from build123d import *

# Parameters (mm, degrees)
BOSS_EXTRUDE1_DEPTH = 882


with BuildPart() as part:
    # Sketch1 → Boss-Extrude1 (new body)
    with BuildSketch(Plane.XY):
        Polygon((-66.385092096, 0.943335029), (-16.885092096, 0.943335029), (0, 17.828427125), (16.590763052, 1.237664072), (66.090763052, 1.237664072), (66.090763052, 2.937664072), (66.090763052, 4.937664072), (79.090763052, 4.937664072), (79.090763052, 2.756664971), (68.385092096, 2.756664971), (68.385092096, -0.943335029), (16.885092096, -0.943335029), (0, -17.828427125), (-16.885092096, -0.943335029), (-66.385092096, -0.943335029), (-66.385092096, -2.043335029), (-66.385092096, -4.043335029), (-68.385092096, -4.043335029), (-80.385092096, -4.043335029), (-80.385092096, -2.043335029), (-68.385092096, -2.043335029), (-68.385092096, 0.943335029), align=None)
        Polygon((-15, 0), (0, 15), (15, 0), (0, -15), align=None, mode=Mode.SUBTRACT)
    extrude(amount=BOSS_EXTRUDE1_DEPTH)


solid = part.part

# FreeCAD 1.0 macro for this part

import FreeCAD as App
import Part
import Sketcher


def add_polygon(sketch, points):
    """Adds a closed chain of lines whose ends are joined by coincident constraints."""
    first, n = sketch.GeometryCount, len(points)
    for a, b in zip(points, points[1:] + points[:1]):
        sketch.addGeometry(Part.LineSegment(App.Vector(*a, 0), App.Vector(*b, 0)), False)
    for i in range(n):
        sketch.addConstraint(Sketcher.Constraint("Coincident", first + i, 2, first + (i + 1) % n, 1))

doc = App.newDocument("Part")
body = doc.addObject("PartDesign::Body", "Body")

# Sketch on XY plane
sketch1 = body.newObject("Sketcher::SketchObject", "Sketch")
sketch1.AttachmentSupport = (doc.getObject("XY_Plane"), [""])
sketch1.MapMode = "FlatFace"
add_polygon(sketch1, [(-16.885092, 0.943335), (-68.385092, 0.943335), (-68.385092, -2.043335), (-80.385092, -2.043335), (-80.385092, -4.043335), (-66.385092, -4.043335), (-66.385092, -0.943335), (-16.885092, -0.943335), (0, -17.828427), (16.885092, -0.943335), (68.385092, -0.943335), (68.385092, 2.756665), (79.090763, 2.756665), (79.090763, 4.937664), (66.090763, 4.937664), (66.090763, 1.237664), (16.590763, 1.237664), (0, 17.828427)])  # lines 0-17
add_polygon(sketch1, [(-15, 0), (0, 15), (15, 0), (0, -15)])  # lines 18-21
sketch1.addConstraint(Sketcher.Constraint("Horizontal", 0))
sketch1.addConstraint(Sketcher.Constraint("Vertical", 1))
sketch1.addConstraint(Sketcher.Constraint("Horizontal", 2))
sketch1.addConstraint(Sketcher.Constraint("Vertical", 3))
sketch1.addConstraint(Sketcher.Constraint("Horizontal", 4))
sketch1.addConstraint(Sketcher.Constraint("Vertical", 5))
sketch1.addConstraint(Sketcher.Constraint("Horizontal", 6))
sketch1.addConstraint(Sketcher.Constraint("Horizontal", 9))
sketch1.addConstraint(Sketcher.Constraint("Vertical", 10))
sketch1.addConstraint(Sketcher.Constraint("Horizontal", 11))
sketch1.addConstraint(Sketcher.Constraint("Vertical", 12))
sketch1.addConstraint(Sketcher.Constraint("Horizontal", 13))
sketch1.addConstraint(Sketcher.Constraint("Vertical", 14))
sketch1.addConstraint(Sketcher.Constraint("Horizontal", 15))
sketch1.addConstraint(Sketcher.Constraint("Symmetric", 0, 2, 9, 2, -1, 1))
sketch1.addConstraint(Sketcher.Constraint("Symmetric", 7, 2, 16, 2, -1, 1))
sketch1.addConstraint(Sketcher.Constraint("Symmetric", 18, 2, 20, 2, -1, 1))
sketch1.addConstraint(Sketcher.Constraint("Symmetric", 19, 2, 21, 2, -1, 1))
sketch1.addConstraint(Sketcher.Constraint("Symmetric", 6, 2, 8, 2, -2))
sketch1.addConstraint(Sketcher.Constraint("PointOnObject", 7, 2, -2))
sketch1.addConstraint(Sketcher.Constraint("PointOnObject", 18, 2, -2))
sketch1.addConstraint(Sketcher.Constraint("PointOnObject", 19, 2, -1))
sketch1.addConstraint(Sketcher.Constraint("Perpendicular", 7, 8))
sketch1.addConstraint(Sketcher.Constraint("Perpendicular", 8, 16))
sketch1.addConstraint(Sketcher.Constraint("Perpendicular", 16, 17))
sketch1.addConstraint(Sketcher.Constraint("Parallel", 17, 18))
sketch1.addConstraint(Sketcher.Constraint("Equal", 6, 15))
sketch1.addConstraint(Sketcher.Constraint("Equal", 10, 14))
sketch1.addConstraint(Sketcher.Constraint("DistanceX", 2, 2, 2, 1, 12.0))
sketch1.addConstraint(Sketcher.Constraint("DistanceX", 4, 1, 4, 2, 14.0))
sketch1.addConstraint(Sketcher.Constraint("DistanceX", 13, 2, 13, 1, 13.0))
sketch1.addConstraint(Sketcher.Constraint("DistanceY", 3, 2, 3, 1, 2.0))
sketch1.addConstraint(Sketcher.Constraint("DistanceX", 0, 2, 0, 1, 51.5))
sketch1.addConstraint(Sketcher.Constraint("DistanceY", 5, 1, 5, 2, 3.1))
sketch1.addConstraint(Sketcher.Constraint("DistanceY", 10, 1, 10, 2, 3.7))
sketch1.addConstraint(Sketcher.Constraint("DistanceY", -1, 1, 18, 2, 15.0))
sketch1.addConstraint(Sketcher.Constraint("DistanceY", 12, 1, 12, 2, 2.180999))
sketch1.addConstraint(Sketcher.Constraint("DistanceX", 11, 1, 11, 2, 10.705671))
sketch1.addConstraint(Sketcher.Constraint("DistanceY", 7, 2, 12, 2, 22.766091))
pad1 = body.newObject("PartDesign::Pad", "Pad")
pad1.Profile = sketch1
pad1.Length = 882

doc.recompute()
